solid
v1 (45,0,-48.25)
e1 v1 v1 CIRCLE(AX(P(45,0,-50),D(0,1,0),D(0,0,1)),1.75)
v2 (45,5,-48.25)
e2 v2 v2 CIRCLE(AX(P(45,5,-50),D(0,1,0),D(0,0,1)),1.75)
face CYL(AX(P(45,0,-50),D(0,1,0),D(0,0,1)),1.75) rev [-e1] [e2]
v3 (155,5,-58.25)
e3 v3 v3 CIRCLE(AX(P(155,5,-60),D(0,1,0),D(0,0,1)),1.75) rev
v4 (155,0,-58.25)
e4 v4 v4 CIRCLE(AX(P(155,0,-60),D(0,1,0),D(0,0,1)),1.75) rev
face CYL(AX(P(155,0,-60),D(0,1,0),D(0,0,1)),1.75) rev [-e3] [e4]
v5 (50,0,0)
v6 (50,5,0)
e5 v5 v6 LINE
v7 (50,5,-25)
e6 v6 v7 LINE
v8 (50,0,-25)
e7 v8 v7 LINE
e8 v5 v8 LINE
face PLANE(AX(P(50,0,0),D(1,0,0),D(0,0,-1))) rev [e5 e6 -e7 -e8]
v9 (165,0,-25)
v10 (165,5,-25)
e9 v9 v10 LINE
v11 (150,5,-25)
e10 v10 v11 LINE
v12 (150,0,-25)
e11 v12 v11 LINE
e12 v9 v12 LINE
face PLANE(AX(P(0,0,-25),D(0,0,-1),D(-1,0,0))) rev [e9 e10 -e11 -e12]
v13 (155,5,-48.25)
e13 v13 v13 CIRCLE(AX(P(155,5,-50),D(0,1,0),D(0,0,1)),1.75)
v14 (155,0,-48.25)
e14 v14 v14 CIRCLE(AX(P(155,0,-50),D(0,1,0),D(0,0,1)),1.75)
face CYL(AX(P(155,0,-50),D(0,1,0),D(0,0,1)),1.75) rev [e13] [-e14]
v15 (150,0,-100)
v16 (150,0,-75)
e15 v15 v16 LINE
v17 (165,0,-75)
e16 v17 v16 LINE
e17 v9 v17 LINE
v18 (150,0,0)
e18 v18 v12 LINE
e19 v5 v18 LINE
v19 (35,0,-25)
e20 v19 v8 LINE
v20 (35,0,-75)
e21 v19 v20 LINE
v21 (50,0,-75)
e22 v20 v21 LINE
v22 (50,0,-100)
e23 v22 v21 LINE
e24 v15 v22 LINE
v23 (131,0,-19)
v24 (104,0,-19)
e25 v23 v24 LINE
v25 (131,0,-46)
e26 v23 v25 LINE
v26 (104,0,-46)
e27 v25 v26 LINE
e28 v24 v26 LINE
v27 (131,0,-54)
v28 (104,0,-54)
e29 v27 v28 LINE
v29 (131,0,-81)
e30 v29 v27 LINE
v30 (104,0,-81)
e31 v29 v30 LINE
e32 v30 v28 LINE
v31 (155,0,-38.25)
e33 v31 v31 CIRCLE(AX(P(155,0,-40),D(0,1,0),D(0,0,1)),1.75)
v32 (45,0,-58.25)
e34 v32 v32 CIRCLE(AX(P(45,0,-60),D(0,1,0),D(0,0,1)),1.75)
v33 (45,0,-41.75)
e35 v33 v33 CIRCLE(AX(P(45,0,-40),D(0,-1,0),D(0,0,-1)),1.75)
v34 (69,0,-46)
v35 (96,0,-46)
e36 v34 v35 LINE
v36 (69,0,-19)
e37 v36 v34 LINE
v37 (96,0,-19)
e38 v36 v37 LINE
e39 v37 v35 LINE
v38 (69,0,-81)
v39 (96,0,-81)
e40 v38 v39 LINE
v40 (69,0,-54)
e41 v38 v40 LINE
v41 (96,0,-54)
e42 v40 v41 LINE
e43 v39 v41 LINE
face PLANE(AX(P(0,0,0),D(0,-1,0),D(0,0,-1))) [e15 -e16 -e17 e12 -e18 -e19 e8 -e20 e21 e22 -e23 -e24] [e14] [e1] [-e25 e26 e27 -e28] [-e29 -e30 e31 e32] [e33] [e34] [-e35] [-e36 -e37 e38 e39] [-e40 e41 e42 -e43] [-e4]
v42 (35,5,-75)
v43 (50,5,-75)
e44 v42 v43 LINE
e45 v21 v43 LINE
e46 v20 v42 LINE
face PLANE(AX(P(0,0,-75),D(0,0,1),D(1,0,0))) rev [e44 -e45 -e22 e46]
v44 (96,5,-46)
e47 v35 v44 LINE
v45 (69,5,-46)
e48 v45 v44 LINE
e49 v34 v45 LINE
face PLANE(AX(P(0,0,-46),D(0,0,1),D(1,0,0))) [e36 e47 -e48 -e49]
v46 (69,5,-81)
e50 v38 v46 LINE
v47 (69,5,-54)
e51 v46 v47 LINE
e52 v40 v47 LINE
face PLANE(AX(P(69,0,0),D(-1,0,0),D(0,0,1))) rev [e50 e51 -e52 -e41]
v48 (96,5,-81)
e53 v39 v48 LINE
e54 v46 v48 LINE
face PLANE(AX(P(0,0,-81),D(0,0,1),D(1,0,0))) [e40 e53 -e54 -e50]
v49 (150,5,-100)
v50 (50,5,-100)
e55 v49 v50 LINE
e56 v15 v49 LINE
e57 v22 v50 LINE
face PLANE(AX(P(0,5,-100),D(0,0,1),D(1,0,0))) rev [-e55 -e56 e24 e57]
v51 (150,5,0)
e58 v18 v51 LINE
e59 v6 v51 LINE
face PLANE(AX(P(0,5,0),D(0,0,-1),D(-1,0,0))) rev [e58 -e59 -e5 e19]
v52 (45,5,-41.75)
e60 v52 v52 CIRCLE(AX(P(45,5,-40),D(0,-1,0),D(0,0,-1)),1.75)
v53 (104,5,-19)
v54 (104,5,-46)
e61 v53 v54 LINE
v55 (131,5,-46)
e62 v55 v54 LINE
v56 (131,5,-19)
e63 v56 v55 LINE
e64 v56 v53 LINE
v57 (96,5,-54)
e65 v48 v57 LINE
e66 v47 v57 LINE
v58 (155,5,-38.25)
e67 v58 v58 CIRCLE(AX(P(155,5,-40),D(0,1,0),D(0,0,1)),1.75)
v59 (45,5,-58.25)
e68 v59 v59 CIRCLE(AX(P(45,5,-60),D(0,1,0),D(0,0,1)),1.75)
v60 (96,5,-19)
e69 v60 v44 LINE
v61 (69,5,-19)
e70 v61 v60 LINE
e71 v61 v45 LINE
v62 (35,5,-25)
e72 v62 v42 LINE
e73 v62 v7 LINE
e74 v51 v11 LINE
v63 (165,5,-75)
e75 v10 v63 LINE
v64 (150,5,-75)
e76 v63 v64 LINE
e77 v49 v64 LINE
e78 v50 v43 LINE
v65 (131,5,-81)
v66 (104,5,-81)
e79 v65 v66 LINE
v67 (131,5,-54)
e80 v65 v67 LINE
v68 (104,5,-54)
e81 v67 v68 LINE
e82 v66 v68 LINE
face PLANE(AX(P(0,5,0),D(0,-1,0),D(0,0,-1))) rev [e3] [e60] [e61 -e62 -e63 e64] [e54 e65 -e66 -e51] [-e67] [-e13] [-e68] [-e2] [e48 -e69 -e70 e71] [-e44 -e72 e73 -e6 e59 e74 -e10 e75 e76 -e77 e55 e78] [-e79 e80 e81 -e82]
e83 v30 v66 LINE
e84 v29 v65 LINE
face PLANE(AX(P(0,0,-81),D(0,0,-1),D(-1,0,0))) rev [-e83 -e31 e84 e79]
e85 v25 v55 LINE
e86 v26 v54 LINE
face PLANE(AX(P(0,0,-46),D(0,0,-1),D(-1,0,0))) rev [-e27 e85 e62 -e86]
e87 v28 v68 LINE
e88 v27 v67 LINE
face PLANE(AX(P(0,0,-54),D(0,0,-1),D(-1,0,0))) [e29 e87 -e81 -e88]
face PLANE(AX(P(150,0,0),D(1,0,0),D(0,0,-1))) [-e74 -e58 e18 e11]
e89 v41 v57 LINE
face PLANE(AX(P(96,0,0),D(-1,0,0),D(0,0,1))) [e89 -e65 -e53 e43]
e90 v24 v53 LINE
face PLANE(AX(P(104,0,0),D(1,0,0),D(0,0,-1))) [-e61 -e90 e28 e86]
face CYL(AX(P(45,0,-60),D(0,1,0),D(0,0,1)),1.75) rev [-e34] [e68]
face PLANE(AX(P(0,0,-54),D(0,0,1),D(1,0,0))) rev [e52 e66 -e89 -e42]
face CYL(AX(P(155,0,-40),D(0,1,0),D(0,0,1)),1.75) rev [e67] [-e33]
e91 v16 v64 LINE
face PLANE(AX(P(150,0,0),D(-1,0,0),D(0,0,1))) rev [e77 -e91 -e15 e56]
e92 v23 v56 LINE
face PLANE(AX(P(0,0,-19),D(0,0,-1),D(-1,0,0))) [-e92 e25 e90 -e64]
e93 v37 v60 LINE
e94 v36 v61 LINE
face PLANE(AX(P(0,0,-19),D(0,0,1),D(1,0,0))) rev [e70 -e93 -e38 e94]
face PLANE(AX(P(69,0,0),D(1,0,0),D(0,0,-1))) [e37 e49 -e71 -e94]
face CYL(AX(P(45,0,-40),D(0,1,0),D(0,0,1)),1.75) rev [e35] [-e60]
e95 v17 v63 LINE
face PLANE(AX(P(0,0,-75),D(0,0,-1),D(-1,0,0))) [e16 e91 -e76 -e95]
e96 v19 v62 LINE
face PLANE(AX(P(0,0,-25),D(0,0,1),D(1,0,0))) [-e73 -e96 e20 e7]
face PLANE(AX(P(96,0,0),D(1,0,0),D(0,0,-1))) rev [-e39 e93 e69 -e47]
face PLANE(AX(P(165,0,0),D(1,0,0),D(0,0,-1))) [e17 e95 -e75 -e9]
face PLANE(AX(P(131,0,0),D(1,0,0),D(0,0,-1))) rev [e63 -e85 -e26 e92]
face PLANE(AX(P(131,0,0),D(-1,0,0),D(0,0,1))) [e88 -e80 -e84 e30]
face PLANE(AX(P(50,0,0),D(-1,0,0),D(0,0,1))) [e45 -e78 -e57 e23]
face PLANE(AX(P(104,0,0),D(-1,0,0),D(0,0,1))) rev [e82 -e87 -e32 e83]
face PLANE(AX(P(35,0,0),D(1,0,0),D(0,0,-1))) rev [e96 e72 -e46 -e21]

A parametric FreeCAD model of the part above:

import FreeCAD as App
import Part
import Sketcher

V = App.Vector
Q = App.Units.Quantity


def add_polygon(sketch, points):
    """Adds a closed chain of lines whose ends are joined by coincident constraints."""
    first, n = sketch.GeometryCount, len(points)
    for a, b in zip(points, points[1:] + points[:1]):
        sketch.addGeometry(Part.LineSegment(App.Vector(*a, 0), App.Vector(*b, 0)), False)
    for i in range(n):
        sketch.addConstraint(Sketcher.Constraint("Coincident", first + i, 2, first + (i + 1) % n, 1))

doc = App.newDocument("Part")
body = doc.addObject("PartDesign::Body", "Body")

# Sketch on XZ plane
sketch1 = doc.addObject("Sketcher::SketchObject", "Sketch")
body.addObject(sketch1)
sketch1.AttachmentSupport = (doc.XZ_Plane, [""])
sketch1.MapMode = "FlatFace"
add_polygon(sketch1, [(0, -100), (0, 0), (200, 0), (200, -100)])  # lines 0-3
sketch1.addConstraint(Sketcher.Constraint("Vertical", 0))
sketch1.addConstraint(Sketcher.Constraint("Horizontal", 1))
sketch1.addConstraint(Sketcher.Constraint("Vertical", 2))
sketch1.addConstraint(Sketcher.Constraint("Horizontal", 3))
sketch1.addConstraint(Sketcher.Constraint("Coincident", 0, 2, -1, 1))
sketch1.addConstraint(Sketcher.Constraint("DistanceX", 1, 1, 1, 2, Q("200 mm")))
sketch1.addConstraint(Sketcher.Constraint("DistanceY", 0, 1, 0, 2, Q("100 mm")))
pad1 = doc.addObject("PartDesign::Pad", "Pad")
body.addObject(pad1)
pad1.Profile = sketch1
pad1.Length = 5
pad1.Reversed = True

# Sketch on XZ plane
sketch2 = doc.addObject("Sketcher::SketchObject", "Sketch001")
body.addObject(sketch2)
sketch2.AttachmentSupport = (doc.XZ_Plane, [""])
sketch2.MapMode = "FlatFace"
sketch2.AttachmentOffset = App.Placement(V(0, 0, -5), App.Rotation())
sketch2.addGeometry(Part.Circle(V(170, -60, 0), V(0, 0, 1), 1.75), False)
sketch2.addGeometry(Part.Circle(V(170, -40, 0), V(0, 0, 1), 1.75), False)
sketch2.addGeometry(Part.Circle(V(30, -40, 0), V(0, 0, 1), 1.75), False)
sketch2.addGeometry(Part.Circle(V(30, -60, 0), V(0, 0, 1), 1.75), False)
sketch2.addGeometry(Part.Circle(V(155, -40, 0), V(0, 0, 1), 1.75), False)
sketch2.addGeometry(Part.Circle(V(155, -60, 0), V(0, 0, 1), 1.75), False)
sketch2.addGeometry(Part.Circle(V(45, -60, 0), V(0, 0, 1), 1.75), False)
sketch2.addGeometry(Part.Circle(V(45, -40, 0), V(0, 0, 1), 1.75), False)
sketch2.addConstraint(Sketcher.Constraint("Equal", 0, 1))
sketch2.addConstraint(Sketcher.Constraint("Equal", 1, 2))
sketch2.addConstraint(Sketcher.Constraint("Equal", 2, 3))
sketch2.addConstraint(Sketcher.Constraint("Equal", 3, 4))
sketch2.addConstraint(Sketcher.Constraint("Equal", 4, 5))
sketch2.addConstraint(Sketcher.Constraint("Equal", 5, 6))
sketch2.addConstraint(Sketcher.Constraint("Equal", 6, 7))
sketch2.addConstraint(Sketcher.Constraint("Horizontal", 1, 3, 2, 3))
sketch2.addConstraint(Sketcher.Constraint("Horizontal", 0, 3, 3, 3))
sketch2.addConstraint(Sketcher.Constraint("Horizontal", 2, 3, 4, 3))
sketch2.addConstraint(Sketcher.Constraint("Horizontal", 3, 3, 5, 3))
sketch2.addConstraint(Sketcher.Constraint("Horizontal", 5, 3, 6, 3))
sketch2.addConstraint(Sketcher.Constraint("Horizontal", 4, 3, 7, 3))
sketch2.addConstraint(Sketcher.Constraint("Vertical", 0, 3, 1, 3))
sketch2.addConstraint(Sketcher.Constraint("Vertical", 2, 3, 3, 3))
sketch2.addConstraint(Sketcher.Constraint("Vertical", 4, 3, 5, 3))
sketch2.addConstraint(Sketcher.Constraint("Vertical", 6, 3, 7, 3))
sketch2.addConstraint(Sketcher.Constraint("Diameter", 0, Q("3.5 mm")))
sketch2.addConstraint(Sketcher.Constraint("DistanceX", -1, 1, 0, 3, Q("170 mm")))
sketch2.addConstraint(Sketcher.Constraint("DistanceY", 0, 3, -1, 1, Q("60 mm")))
sketch2.addConstraint(Sketcher.Constraint("DistanceY", 1, 3, -1, 1, Q("40 mm")))
sketch2.addConstraint(Sketcher.Constraint("DistanceX", -1, 1, 2, 3, Q("30 mm")))
sketch2.addConstraint(Sketcher.Constraint("DistanceX", -1, 1, 4, 3, Q("155 mm")))
sketch2.addConstraint(Sketcher.Constraint("DistanceX", -1, 1, 6, 3, Q("45 mm")))
pocket1 = doc.addObject("PartDesign::Pocket", "Pocket")
body.addObject(pocket1)
pocket1.Profile = sketch2
pocket1.Type = "ThroughAll"
pocket1.Reversed = True

# Sketch on XZ plane
sketch3 = doc.addObject("Sketcher::SketchObject", "Sketch002")
body.addObject(sketch3)
sketch3.AttachmentSupport = (doc.XZ_Plane, [""])
sketch3.MapMode = "FlatFace"
sketch3.AttachmentOffset = App.Placement(V(0, 0, -5), App.Rotation())
sketch3.addGeometry(Part.Circle(V(155, -50, 0), V(0, 0, 1), 1.75), False)
sketch3.addGeometry(Part.Circle(V(45, -50, 0), V(0, 0, 1), 1.75), False)
sketch3.addConstraint(Sketcher.Constraint("Equal", 0, 1))
sketch3.addConstraint(Sketcher.Constraint("Horizontal", 0, 3, 1, 3))
sketch3.addConstraint(Sketcher.Constraint("Diameter", 0, Q("3.5 mm")))
sketch3.addConstraint(Sketcher.Constraint("DistanceX", -1, 1, 0, 3, Q("155 mm")))
sketch3.addConstraint(Sketcher.Constraint("DistanceY", 0, 3, -1, 1, Q("50 mm")))
sketch3.addConstraint(Sketcher.Constraint("DistanceX", -1, 1, 1, 3, Q("45 mm")))
pocket2 = doc.addObject("PartDesign::Pocket", "Pocket001")
body.addObject(pocket2)
pocket2.Profile = sketch3
pocket2.Type = "ThroughAll"
pocket2.Reversed = True

# Sketch on XZ plane
sketch4 = doc.addObject("Sketcher::SketchObject", "Sketch003")
body.addObject(sketch4)
sketch4.AttachmentSupport = (doc.XZ_Plane, [""])
sketch4.MapMode = "FlatFace"
sketch4.AttachmentOffset = App.Placement(V(0, 0, -5), App.Rotation())
add_polygon(sketch4, [(0, -25), (0, 0), (50, 0), (50, -25)])  # lines 0-3
add_polygon(sketch4, [(0, -100), (0, -75), (50, -75), (50, -100)])  # lines 4-7
add_polygon(sketch4, [(69, -81), (69, -54), (96, -54), (96, -81)])  # lines 8-11
add_polygon(sketch4, [(104, -81), (104, -54), (131, -54), (131, -81)])  # lines 12-15
add_polygon(sketch4, [(69, -46), (69, -19), (96, -19), (96, -46)])  # lines 16-19
add_polygon(sketch4, [(104, -46), (104, -19), (131, -19), (131, -46)])  # lines 20-23
add_polygon(sketch4, [(150, -100), (150, -75), (200, -75), (200, -100)])  # lines 24-27
add_polygon(sketch4, [(150, -25), (150, 0), (200, 0), (200, -25)])  # lines 28-31
sketch4.addConstraint(Sketcher.Constraint("Vertical", 0))
sketch4.addConstraint(Sketcher.Constraint("Horizontal", 1))
sketch4.addConstraint(Sketcher.Constraint("Vertical", 2))
sketch4.addConstraint(Sketcher.Constraint("Horizontal", 3))
sketch4.addConstraint(Sketcher.Constraint("Vertical", 4))
sketch4.addConstraint(Sketcher.Constraint("Horizontal", 5))
sketch4.addConstraint(Sketcher.Constraint("Vertical", 6))
sketch4.addConstraint(Sketcher.Constraint("Horizontal", 7))
sketch4.addConstraint(Sketcher.Constraint("Vertical", 8))
sketch4.addConstraint(Sketcher.Constraint("Horizontal", 9))
sketch4.addConstraint(Sketcher.Constraint("Vertical", 10))
sketch4.addConstraint(Sketcher.Constraint("Horizontal", 11))
sketch4.addConstraint(Sketcher.Constraint("Vertical", 12))
sketch4.addConstraint(Sketcher.Constraint("Horizontal", 13))
sketch4.addConstraint(Sketcher.Constraint("Vertical", 14))
sketch4.addConstraint(Sketcher.Constraint("Horizontal", 15))
sketch4.addConstraint(Sketcher.Constraint("Vertical", 16))
sketch4.addConstraint(Sketcher.Constraint("Horizontal", 17))
sketch4.addConstraint(Sketcher.Constraint("Vertical", 18))
sketch4.addConstraint(Sketcher.Constraint("Horizontal", 19))
sketch4.addConstraint(Sketcher.Constraint("Vertical", 20))
sketch4.addConstraint(Sketcher.Constraint("Horizontal", 21))
sketch4.addConstraint(Sketcher.Constraint("Vertical", 22))
sketch4.addConstraint(Sketcher.Constraint("Horizontal", 23))
sketch4.addConstraint(Sketcher.Constraint("Vertical", 24))
sketch4.addConstraint(Sketcher.Constraint("Horizontal", 25))
sketch4.addConstraint(Sketcher.Constraint("Vertical", 26))
sketch4.addConstraint(Sketcher.Constraint("Horizontal", 27))
sketch4.addConstraint(Sketcher.Constraint("Vertical", 28))
sketch4.addConstraint(Sketcher.Constraint("Horizontal", 29))
sketch4.addConstraint(Sketcher.Constraint("Vertical", 30))
sketch4.addConstraint(Sketcher.Constraint("Horizontal", 31))
sketch4.addConstraint(Sketcher.Constraint("Coincident", 0, 2, -1, 1))
sketch4.addConstraint(Sketcher.Constraint("PointOnObject", 4, 2, -2))
sketch4.addConstraint(Sketcher.Constraint("PointOnObject", 28, 2, -1))
sketch4.addConstraint(Sketcher.Constraint("Horizontal", 9, 2, 12, 2))
sketch4.addConstraint(Sketcher.Constraint("Horizontal", 11, 2, 14, 2))
sketch4.addConstraint(Sketcher.Constraint("Horizontal", 17, 2, 20, 2))
sketch4.addConstraint(Sketcher.Constraint("Horizontal", 19, 2, 22, 2))
sketch4.addConstraint(Sketcher.Constraint("Horizontal", 5, 2, 24, 2))
sketch4.addConstraint(Sketcher.Constraint("Horizontal", 7, 2, 26, 2))
sketch4.addConstraint(Sketcher.Constraint("Horizontal", 3, 2, 30, 2))
sketch4.addConstraint(Sketcher.Constraint("Vertical", 2, 2, 5, 2))
sketch4.addConstraint(Sketcher.Constraint("Vertical", 11, 2, 16, 2))
sketch4.addConstraint(Sketcher.Constraint("Vertical", 10, 2, 17, 2))
sketch4.addConstraint(Sketcher.Constraint("Vertical", 15, 2, 20, 2))
sketch4.addConstraint(Sketcher.Constraint("Vertical", 14, 2, 21, 2))
sketch4.addConstraint(Sketcher.Constraint("Vertical", 27, 2, 28, 2))
sketch4.addConstraint(Sketcher.Constraint("Vertical", 26, 2, 29, 2))
sketch4.addConstraint(Sketcher.Constraint("Equal", 11, 13))
sketch4.addConstraint(Sketcher.Constraint("Equal", 7, 25))
sketch4.addConstraint(Sketcher.Constraint("Equal", 2, 4))
sketch4.addConstraint(Sketcher.Constraint("Equal", 23, 8))
sketch4.addConstraint(Sketcher.Constraint("Equal", 14, 16))
sketch4.addConstraint(Sketcher.Constraint("DistanceX", 1, 1, 1, 2, Q("50 mm")))
sketch4.addConstraint(Sketcher.Constraint("DistanceX", 9, 1, 9, 2, Q("27 mm")))
sketch4.addConstraint(Sketcher.Constraint("DistanceY", 0, 1, 0, 2, Q("25 mm")))
sketch4.addConstraint(Sketcher.Constraint("DistanceY", 4, 2, -1, 1, Q("75 mm")))
sketch4.addConstraint(Sketcher.Constraint("DistanceX", -1, 1, 8, 2, Q("69 mm")))
sketch4.addConstraint(Sketcher.Constraint("DistanceY", 8, 2, -1, 1, Q("54 mm")))
sketch4.addConstraint(Sketcher.Constraint("DistanceX", -1, 1, 12, 2, Q("104 mm")))
sketch4.addConstraint(Sketcher.Constraint("DistanceY", 16, 2, -1, 1, Q("19 mm")))
sketch4.addConstraint(Sketcher.Constraint("DistanceX", -1, 1, 24, 2, Q("150 mm")))
pocket3 = doc.addObject("PartDesign::Pocket", "Pocket002")
body.addObject(pocket3)
pocket3.Profile = sketch4
pocket3.Type = "ThroughAll"
pocket3.Reversed = True

# Sketch on XZ plane
sketch5 = doc.addObject("Sketcher::SketchObject", "Sketch004")
body.addObject(sketch5)
sketch5.AttachmentSupport = (doc.XZ_Plane, [""])
sketch5.MapMode = "FlatFace"
sketch5.AttachmentOffset = App.Placement(V(0, 0, -5), App.Rotation())
add_polygon(sketch5, [(165, -75), (165, -25), (200, -25), (200, -75)])  # lines 0-3
sketch5.addGeometry(Part.Circle(V(170, -40, 0), V(0, 0, 1), 1.75), False)  # 4
sketch5.addGeometry(Part.Circle(V(170, -60, 0), V(0, 0, 1), 1.75), False)  # 5
add_polygon(sketch5, [(0, -75), (0, -25), (35, -25), (35, -75)])  # lines 6-9
sketch5.addGeometry(Part.Circle(V(30, -40, 0), V(0, 0, 1), 1.75), False)  # 10
sketch5.addGeometry(Part.Circle(V(30, -60, 0), V(0, 0, 1), 1.75), False)  # 11
sketch5.addConstraint(Sketcher.Constraint("Vertical", 0))
sketch5.addConstraint(Sketcher.Constraint("Horizontal", 1))
sketch5.addConstraint(Sketcher.Constraint("Vertical", 2))
sketch5.addConstraint(Sketcher.Constraint("Horizontal", 3))
sketch5.addConstraint(Sketcher.Constraint("Vertical", 6))
sketch5.addConstraint(Sketcher.Constraint("Horizontal", 7))
sketch5.addConstraint(Sketcher.Constraint("Vertical", 8))
sketch5.addConstraint(Sketcher.Constraint("Horizontal", 9))
sketch5.addConstraint(Sketcher.Constraint("Equal", 4, 5))
sketch5.addConstraint(Sketcher.Constraint("Equal", 5, 10))
sketch5.addConstraint(Sketcher.Constraint("Equal", 10, 11))
sketch5.addConstraint(Sketcher.Constraint("PointOnObject", 6, 2, -2))
sketch5.addConstraint(Sketcher.Constraint("Horizontal", 4, 3, 10, 3))
sketch5.addConstraint(Sketcher.Constraint("Horizontal", 5, 3, 11, 3))
sketch5.addConstraint(Sketcher.Constraint("Horizontal", 1, 2, 6, 2))
sketch5.addConstraint(Sketcher.Constraint("Horizontal", 3, 2, 8, 2))
sketch5.addConstraint(Sketcher.Constraint("Vertical", 4, 3, 5, 3))
sketch5.addConstraint(Sketcher.Constraint("Vertical", 10, 3, 11, 3))
sketch5.addConstraint(Sketcher.Constraint("Equal", 3, 7))
sketch5.addConstraint(Sketcher.Constraint("Diameter", 4, Q("3.5 mm")))
sketch5.addConstraint(Sketcher.Constraint("DistanceX", 1, 1, 1, 2, Q("35 mm")))
sketch5.addConstraint(Sketcher.Constraint("DistanceY", 0, 1, 0, 2, Q("50 mm")))
sketch5.addConstraint(Sketcher.Constraint("DistanceX", -1, 1, 4, 3, Q("170 mm")))
sketch5.addConstraint(Sketcher.Constraint("DistanceY", 4, 3, -1, 1, Q("40 mm")))
sketch5.addConstraint(Sketcher.Constraint("DistanceY", 5, 3, -1, 1, Q("60 mm")))
sketch5.addConstraint(Sketcher.Constraint("DistanceX", -1, 1, 10, 3, Q("30 mm")))
sketch5.addConstraint(Sketcher.Constraint("DistanceX", -1, 1, 0, 2, Q("165 mm")))
sketch5.addConstraint(Sketcher.Constraint("DistanceY", 0, 2, -1, 1, Q("25 mm")))
pocket4 = doc.addObject("PartDesign::Pocket", "Pocket003")
body.addObject(pocket4)
pocket4.Profile = sketch5
pocket4.Length = 224.662692
pocket4.Reversed = True

doc.recompute()
